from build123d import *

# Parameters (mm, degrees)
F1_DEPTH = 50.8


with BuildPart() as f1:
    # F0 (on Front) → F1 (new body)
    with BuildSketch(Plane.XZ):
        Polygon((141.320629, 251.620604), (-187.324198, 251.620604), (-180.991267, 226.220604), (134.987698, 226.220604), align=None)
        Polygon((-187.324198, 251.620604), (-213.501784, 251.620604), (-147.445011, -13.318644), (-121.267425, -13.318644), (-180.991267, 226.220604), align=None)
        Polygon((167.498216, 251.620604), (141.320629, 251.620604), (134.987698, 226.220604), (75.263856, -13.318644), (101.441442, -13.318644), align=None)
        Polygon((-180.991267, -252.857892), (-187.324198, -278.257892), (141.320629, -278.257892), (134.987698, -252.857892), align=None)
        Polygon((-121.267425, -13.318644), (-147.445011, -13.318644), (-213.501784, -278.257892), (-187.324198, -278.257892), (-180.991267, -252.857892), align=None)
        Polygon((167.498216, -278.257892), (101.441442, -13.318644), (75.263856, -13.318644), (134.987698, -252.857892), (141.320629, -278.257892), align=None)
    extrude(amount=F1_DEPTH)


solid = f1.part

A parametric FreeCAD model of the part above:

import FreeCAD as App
import Part
import Sketcher

V = App.Vector
Q = App.Units.Quantity


def add_polygon(sketch, points):
    """Adds a closed chain of lines whose ends are joined by coincident constraints."""
    first, n = sketch.GeometryCount, len(points)
    for a, b in zip(points, points[1:] + points[:1]):
        sketch.addGeometry(Part.LineSegment(App.Vector(*a, 0), App.Vector(*b, 0)), False)
    for i in range(n):
        sketch.addConstraint(Sketcher.Constraint("Coincident", first + i, 2, first + (i + 1) % n, 1))

doc = App.newDocument("Part")
body = doc.addObject("PartDesign::Body", "Body")

# Sketch on XZ plane
sketch1 = body.newObject("Sketcher::SketchObject", "Sketch")
sketch1.AttachmentSupport = (doc.getObject("XZ_Plane"), [""])
sketch1.MapMode = "FlatFace"
add_polygon(sketch1, [(-214, 252), (-147, -13), (-214, -278), (167, -278), (101, -13), (167, 252)])  # lines 0-5
add_polygon(sketch1, [(135, -253), (-181, -253), (-121, -13), (-181, 226), (135, 226), (75, -13)])  # lines 6-11
sketch1.addConstraint(Sketcher.Constraint("Horizontal", 2))
sketch1.addConstraint(Sketcher.Constraint("Horizontal", 5))
sketch1.addConstraint(Sketcher.Constraint("Horizontal", 6))
sketch1.addConstraint(Sketcher.Constraint("Horizontal", 9))
sketch1.addConstraint(Sketcher.Constraint("Parallel", 0, 3))
sketch1.addConstraint(Sketcher.Constraint("Parallel", 1, 4))
sketch1.addConstraint(Sketcher.Constraint("Parallel", 4, 7))
sketch1.addConstraint(Sketcher.Constraint("Parallel", 3, 8))
sketch1.addConstraint(Sketcher.Constraint("Parallel", 7, 10))
sketch1.addConstraint(Sketcher.Constraint("Parallel", 8, 11))
sketch1.addConstraint(Sketcher.Constraint("Horizontal", 0, 2, 3, 2))
sketch1.addConstraint(Sketcher.Constraint("Horizontal", 3, 2, 7, 2))
sketch1.addConstraint(Sketcher.Constraint("Horizontal", 7, 2, 10, 2))
sketch1.addConstraint(Sketcher.Constraint("Vertical", 2, 2, 4, 2))
sketch1.addConstraint(Sketcher.Constraint("Vertical", 1, 2, 5, 2))
sketch1.addConstraint(Sketcher.Constraint("Vertical", 6, 2, 8, 2))
sketch1.addConstraint(Sketcher.Constraint("DistanceX", 2, 1, 2, 2, Q("15 in")))
sketch1.addConstraint(Sketcher.Constraint("Angle", 0, Q("-76 deg")))
sketch1.addConstraint(Sketcher.Constraint("DistanceY", 1, 2, 6, 2, Q("1 in")))
sketch1.addConstraint(Sketcher.Constraint("Distance", 0, Q("10.75 in")))
sketch1.addConstraint(Sketcher.Constraint("DistanceX", -1, 1, 9, 2, Q("134.987698 mm")))
sketch1.addConstraint(Sketcher.Constraint("DistanceX", 6, 2, 6, 1, Q("315.978965 mm")))
sketch1.addConstraint(Sketcher.Constraint("DistanceX", 0, 2, -1, 1, Q("147.445011 mm")))
sketch1.addConstraint(Sketcher.Constraint("DistanceY", 6, 2, -1, 1, Q("252.857892 mm")))
pad1 = body.newObject("PartDesign::Pad", "Pad")
pad1.Profile = sketch1
pad1.Length = Q("2 in")

doc.recompute()
